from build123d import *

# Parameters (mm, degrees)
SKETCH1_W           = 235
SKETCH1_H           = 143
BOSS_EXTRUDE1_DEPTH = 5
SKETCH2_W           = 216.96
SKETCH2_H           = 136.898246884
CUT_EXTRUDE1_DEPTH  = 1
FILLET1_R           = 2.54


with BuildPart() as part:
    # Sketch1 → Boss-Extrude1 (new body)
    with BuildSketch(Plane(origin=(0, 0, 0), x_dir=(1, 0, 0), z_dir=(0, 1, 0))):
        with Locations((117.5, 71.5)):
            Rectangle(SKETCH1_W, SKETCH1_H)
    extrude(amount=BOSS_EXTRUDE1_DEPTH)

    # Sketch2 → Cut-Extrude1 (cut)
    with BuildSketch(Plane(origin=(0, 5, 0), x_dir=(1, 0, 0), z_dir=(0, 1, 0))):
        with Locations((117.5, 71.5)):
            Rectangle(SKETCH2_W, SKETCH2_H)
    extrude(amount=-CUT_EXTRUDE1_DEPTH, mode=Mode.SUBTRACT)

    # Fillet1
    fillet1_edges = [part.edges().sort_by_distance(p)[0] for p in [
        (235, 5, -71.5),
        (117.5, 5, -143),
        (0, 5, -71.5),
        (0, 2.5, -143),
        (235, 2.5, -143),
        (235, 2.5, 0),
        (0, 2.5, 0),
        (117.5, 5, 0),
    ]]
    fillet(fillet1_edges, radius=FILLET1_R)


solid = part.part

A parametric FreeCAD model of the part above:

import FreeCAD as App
import Part
import Sketcher
from FreeCAD import Vector
Q = App.Units.Quantity


def edges_at(feature, points):
    """Names of the edges that pass closest to the given points."""
    edges = feature.Shape.Edges
    near = lambda p: min(range(len(edges)), key=lambda i: edges[i].distToShape(Part.Vertex(*p))[0])
    return sorted({f"Edge{near(p) + 1}" for p in points})


def add_polygon(sketch, points):
    """Adds a closed chain of lines whose ends are joined by coincident constraints."""
    first, n = sketch.GeometryCount, len(points)
    for a, b in zip(points, points[1:] + points[:1]):
        sketch.addGeometry(Part.LineSegment(App.Vector(*a, 0), App.Vector(*b, 0)), False)
    for i in range(n):
        sketch.addConstraint(Sketcher.Constraint("Coincident", first + i, 2, first + (i + 1) % n, 1))

doc = App.newDocument("Part")
body = doc.addObject("PartDesign::Body", "Body")

sketch1 = body.newObject("Sketcher::SketchObject", "Sketch")
sketch1.AttachmentSupport = (doc.getObject("XZ_Plane"), [""])
sketch1.MapMode = "FlatFace"
add_polygon(sketch1, [(0, -143), (0, 0), (235, 0), (235, -143)])
sketch1.addConstraint([
    Sketcher.Constraint("Vertical", 0),
    Sketcher.Constraint("Horizontal", 1),
    Sketcher.Constraint("Vertical", 2),
    Sketcher.Constraint("Horizontal", 3),
    Sketcher.Constraint("Coincident", 0, 2, -1, 1),
    Sketcher.Constraint("DistanceX", 1, 1, 1, 2, Q("235 mm")),
    Sketcher.Constraint("DistanceY", 0, 1, 0, 2, Q("143 mm")),
])
pad1 = body.newObject("PartDesign::Pad", "Pad")
pad1.Profile = sketch1
pad1.Length = 5
pad1.Reversed = True

sketch2 = body.newObject("Sketcher::SketchObject", "Sketch001")
sketch2.AttachmentSupport = (doc.getObject("XZ_Plane"), [""])
sketch2.MapMode = "FlatFace"
sketch2.AttachmentOffset = App.Placement(Vector(0, 0, -5), App.Rotation())
add_polygon(sketch2, [(9, -140), (9, -3), (226, -3), (226, -140)])
sketch2.addConstraint([
    Sketcher.Constraint("Vertical", 0),
    Sketcher.Constraint("Horizontal", 1),
    Sketcher.Constraint("Vertical", 2),
    Sketcher.Constraint("Horizontal", 3),
    Sketcher.Constraint("DistanceX", 1, 1, 1, 2, Q("216.96 mm")),
    Sketcher.Constraint("DistanceX", -1, 1, 0, 2, Q("9.02 mm")),
    Sketcher.Constraint("DistanceY", 0, 1, 0, 2, Q("136.898247 mm")),
    Sketcher.Constraint("DistanceY", 0, 2, -1, 1, Q("3.050877 mm")),
])
pocket1 = body.newObject("PartDesign::Pocket", "Pocket")
pocket1.Profile = sketch2
pocket1.Length = 1
pocket1.Reversed = True
doc.recompute()

fillet = body.newObject("PartDesign::Fillet", "Fillet")
fillet.Base = (pocket1, edges_at(pocket1, [
    (235, 5, -71.5),
    (117.5, 5, -143),
    (0, 5, -71.5),
    (0, 2.5, -143),
    (235, 2.5, -143),
    (235, 2.5, 0),
    (0, 2.5, 0),
    (117.5, 5, 0),
]))
fillet.Radius = 2.54

doc.recompute()
